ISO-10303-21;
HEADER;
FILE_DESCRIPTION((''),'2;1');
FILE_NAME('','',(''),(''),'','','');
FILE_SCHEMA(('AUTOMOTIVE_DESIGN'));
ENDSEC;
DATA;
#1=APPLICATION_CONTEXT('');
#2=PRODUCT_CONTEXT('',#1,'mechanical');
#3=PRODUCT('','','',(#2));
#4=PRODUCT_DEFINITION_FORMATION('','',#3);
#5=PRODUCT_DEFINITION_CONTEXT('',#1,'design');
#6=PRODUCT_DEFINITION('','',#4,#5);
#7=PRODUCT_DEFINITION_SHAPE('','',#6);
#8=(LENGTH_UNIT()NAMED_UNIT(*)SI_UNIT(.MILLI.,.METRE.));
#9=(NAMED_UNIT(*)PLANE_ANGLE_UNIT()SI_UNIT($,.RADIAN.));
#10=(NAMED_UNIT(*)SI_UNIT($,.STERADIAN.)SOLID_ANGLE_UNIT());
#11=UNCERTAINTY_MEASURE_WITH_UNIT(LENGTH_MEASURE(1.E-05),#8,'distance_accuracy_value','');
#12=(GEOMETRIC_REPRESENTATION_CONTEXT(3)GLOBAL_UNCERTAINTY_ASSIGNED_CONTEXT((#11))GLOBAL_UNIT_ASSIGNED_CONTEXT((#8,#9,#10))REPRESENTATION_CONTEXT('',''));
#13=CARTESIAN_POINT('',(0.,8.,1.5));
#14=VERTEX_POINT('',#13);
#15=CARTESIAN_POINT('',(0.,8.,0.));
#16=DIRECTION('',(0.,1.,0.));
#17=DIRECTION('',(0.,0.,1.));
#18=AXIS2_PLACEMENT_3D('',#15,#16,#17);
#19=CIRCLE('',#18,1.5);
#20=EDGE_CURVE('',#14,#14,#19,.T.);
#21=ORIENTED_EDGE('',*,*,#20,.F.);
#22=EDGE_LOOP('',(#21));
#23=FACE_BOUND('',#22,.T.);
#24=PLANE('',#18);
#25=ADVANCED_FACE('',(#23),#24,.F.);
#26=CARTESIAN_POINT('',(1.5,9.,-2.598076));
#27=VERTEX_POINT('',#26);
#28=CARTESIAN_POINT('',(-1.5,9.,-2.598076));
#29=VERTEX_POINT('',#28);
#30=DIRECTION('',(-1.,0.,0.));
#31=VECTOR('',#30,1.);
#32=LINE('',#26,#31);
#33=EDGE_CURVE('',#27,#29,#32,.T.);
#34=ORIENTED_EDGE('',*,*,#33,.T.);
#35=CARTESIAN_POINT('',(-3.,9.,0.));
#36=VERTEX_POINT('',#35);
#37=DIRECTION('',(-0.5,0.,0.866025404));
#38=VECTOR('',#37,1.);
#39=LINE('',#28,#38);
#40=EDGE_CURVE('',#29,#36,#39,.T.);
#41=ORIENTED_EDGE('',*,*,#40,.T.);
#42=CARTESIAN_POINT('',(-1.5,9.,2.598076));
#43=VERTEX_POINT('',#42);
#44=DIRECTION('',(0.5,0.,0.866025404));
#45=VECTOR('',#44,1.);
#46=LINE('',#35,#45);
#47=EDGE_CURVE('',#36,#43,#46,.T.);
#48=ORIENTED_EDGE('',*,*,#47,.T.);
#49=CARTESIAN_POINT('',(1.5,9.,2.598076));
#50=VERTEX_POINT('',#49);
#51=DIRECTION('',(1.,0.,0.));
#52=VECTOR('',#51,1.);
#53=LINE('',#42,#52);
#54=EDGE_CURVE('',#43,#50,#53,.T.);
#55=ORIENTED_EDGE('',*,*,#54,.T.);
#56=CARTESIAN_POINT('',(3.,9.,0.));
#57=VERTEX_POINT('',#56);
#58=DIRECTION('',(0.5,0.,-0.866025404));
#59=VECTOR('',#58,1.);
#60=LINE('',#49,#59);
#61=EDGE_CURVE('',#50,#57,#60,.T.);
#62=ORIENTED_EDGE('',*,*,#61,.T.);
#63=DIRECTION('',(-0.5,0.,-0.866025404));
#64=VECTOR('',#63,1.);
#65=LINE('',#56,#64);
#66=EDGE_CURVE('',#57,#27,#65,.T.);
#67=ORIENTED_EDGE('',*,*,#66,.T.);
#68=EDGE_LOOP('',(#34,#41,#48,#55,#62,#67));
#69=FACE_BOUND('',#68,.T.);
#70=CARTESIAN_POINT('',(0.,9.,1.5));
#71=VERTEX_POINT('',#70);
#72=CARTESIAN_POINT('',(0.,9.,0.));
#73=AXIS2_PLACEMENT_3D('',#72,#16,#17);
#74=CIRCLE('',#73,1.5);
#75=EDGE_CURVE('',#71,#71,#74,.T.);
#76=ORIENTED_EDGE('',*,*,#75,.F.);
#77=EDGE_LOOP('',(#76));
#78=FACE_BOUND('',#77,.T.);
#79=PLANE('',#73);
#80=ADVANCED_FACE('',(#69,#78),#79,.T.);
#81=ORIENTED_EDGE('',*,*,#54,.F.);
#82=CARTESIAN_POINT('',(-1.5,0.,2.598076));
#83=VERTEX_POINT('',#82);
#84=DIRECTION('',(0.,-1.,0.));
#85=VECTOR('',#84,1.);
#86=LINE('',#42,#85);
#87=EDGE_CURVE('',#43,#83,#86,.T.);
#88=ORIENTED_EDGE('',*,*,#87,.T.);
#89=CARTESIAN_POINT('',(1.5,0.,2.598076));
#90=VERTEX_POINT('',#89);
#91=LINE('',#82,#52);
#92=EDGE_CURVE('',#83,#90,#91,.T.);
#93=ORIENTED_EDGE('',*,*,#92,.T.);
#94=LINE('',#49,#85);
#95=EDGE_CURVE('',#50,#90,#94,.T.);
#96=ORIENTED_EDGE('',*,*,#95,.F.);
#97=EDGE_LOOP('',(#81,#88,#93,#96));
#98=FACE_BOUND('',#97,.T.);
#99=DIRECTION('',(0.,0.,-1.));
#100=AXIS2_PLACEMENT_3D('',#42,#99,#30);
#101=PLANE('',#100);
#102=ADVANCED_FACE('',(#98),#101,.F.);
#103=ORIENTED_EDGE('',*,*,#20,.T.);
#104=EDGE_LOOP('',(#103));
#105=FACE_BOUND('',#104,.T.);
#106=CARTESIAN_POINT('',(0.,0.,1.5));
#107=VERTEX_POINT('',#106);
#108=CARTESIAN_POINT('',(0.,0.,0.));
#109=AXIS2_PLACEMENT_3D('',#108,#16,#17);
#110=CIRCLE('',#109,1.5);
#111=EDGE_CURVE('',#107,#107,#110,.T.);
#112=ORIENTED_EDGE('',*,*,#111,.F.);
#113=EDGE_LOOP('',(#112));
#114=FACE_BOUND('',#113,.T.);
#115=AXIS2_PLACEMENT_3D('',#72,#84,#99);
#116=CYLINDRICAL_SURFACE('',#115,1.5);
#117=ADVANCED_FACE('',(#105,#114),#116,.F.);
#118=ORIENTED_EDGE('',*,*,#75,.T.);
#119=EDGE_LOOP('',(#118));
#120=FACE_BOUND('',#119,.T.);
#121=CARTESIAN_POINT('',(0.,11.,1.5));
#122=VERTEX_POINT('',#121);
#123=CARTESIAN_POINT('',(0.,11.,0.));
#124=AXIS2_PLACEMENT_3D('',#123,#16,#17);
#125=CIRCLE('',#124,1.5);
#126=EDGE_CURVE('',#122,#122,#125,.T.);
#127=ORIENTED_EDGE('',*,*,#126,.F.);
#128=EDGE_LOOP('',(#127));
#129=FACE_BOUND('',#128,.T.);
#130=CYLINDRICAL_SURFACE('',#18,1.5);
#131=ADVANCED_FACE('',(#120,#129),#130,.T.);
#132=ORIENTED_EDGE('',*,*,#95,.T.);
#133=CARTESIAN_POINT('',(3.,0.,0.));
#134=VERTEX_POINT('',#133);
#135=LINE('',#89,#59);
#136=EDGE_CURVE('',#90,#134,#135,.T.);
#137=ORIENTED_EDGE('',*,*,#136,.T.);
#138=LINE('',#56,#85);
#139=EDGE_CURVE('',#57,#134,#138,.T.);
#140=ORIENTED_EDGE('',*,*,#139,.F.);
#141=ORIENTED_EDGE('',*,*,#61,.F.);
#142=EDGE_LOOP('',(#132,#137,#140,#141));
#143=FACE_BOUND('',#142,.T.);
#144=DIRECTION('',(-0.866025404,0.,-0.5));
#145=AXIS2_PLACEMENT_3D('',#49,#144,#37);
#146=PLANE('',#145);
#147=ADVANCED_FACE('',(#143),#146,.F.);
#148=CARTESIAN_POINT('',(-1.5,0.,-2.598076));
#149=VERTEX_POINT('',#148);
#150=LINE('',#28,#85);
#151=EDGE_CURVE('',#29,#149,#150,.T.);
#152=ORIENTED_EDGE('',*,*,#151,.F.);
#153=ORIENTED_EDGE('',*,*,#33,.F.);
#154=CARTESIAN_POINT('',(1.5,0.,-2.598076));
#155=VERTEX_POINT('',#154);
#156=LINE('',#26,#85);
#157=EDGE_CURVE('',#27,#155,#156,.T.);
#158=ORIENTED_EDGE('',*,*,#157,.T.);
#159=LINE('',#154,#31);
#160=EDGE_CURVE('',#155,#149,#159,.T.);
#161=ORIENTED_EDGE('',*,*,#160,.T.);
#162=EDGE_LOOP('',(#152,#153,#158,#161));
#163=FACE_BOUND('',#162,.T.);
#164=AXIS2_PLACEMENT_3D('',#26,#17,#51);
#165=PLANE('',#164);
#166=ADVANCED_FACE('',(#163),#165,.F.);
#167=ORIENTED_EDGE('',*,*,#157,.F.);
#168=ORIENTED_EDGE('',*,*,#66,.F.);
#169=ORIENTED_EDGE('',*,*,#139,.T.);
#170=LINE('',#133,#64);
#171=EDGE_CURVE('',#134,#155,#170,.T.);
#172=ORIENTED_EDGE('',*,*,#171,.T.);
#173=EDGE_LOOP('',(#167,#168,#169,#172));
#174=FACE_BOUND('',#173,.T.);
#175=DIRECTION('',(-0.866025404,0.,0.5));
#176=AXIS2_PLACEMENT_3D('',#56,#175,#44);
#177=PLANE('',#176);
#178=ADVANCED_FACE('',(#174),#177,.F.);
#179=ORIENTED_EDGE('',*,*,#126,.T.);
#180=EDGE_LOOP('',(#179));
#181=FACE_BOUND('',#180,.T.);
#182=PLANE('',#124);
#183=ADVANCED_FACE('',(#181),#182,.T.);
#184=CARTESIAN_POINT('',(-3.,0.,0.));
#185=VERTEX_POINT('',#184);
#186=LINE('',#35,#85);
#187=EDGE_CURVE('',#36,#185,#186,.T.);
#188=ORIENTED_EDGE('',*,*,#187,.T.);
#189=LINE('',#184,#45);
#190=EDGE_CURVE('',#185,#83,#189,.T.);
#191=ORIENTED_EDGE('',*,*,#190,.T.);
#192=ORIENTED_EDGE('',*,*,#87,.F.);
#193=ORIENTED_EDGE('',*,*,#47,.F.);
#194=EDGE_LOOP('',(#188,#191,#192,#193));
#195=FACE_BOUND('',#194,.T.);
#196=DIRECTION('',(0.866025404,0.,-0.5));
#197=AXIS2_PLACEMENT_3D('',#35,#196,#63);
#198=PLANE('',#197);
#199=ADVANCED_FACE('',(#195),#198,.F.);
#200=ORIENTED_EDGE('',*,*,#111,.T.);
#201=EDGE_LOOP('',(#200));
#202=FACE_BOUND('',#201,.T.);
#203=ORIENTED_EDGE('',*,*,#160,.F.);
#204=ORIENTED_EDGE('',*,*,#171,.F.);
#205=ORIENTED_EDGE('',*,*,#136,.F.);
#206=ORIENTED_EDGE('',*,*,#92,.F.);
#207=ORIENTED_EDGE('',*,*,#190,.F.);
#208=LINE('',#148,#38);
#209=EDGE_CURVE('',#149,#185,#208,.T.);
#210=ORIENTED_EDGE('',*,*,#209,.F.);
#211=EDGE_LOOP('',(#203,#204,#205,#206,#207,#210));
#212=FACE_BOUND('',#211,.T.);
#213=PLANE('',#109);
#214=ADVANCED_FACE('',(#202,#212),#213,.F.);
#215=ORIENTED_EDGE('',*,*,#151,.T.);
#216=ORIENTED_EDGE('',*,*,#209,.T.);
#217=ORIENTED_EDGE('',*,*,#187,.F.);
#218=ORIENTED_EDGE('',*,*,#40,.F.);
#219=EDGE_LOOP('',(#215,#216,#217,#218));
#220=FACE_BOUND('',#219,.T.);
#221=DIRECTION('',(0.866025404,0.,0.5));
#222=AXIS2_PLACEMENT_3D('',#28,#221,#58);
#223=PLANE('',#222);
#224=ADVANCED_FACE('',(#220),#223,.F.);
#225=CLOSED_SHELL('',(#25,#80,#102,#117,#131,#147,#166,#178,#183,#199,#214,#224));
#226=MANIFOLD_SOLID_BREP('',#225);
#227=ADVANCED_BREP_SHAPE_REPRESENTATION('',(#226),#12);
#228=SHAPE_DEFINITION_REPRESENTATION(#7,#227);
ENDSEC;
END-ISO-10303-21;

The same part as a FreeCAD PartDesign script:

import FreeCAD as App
import Part
import Sketcher
Q = App.Units.Quantity


def add_polygon(sketch, points):
    """Adds a closed chain of lines whose ends are joined by coincident constraints."""
    first, n = sketch.GeometryCount, len(points)
    for a, b in zip(points, points[1:] + points[:1]):
        sketch.addGeometry(Part.LineSegment(App.Vector(*a, 0), App.Vector(*b, 0)), False)
    for i in range(n):
        sketch.addConstraint(Sketcher.Constraint("Coincident", first + i, 2, first + (i + 1) % n, 1))

doc = App.newDocument("Part")
body = doc.addObject("PartDesign::Body", "Body")

sketch1 = body.newObject("Sketcher::SketchObject", "Sketch")
sketch1.AttachmentSupport = (doc.getObject("XZ_Plane"), [""])
sketch1.MapMode = "FlatFace"
add_polygon(sketch1, [(3, 0), (1.5, -2.6), (-1.5, -2.6), (-3, 0), (-1.5, 2.6), (1.5, 2.6)])
sketch1.addGeometry(Part.Circle(App.Vector(0, 0, 0), App.Vector(0, 0, 1), 1.5), False)
sketch1.addConstraint([
    Sketcher.Constraint("Horizontal", 1),
    Sketcher.Constraint("Horizontal", 4),
    Sketcher.Constraint("Coincident", 6, 3, -1, 1),
    Sketcher.Constraint("Symmetric", 0, 2, 3, 2, -1, 1),
    Sketcher.Constraint("Symmetric", 2, 2, 5, 2, -1, 1),
    Sketcher.Constraint("PointOnObject", 2, 2, -1),
    Sketcher.Constraint("Parallel", 2, 5),
    Sketcher.Constraint("Vertical", 1, 2, 3, 2),
    Sketcher.Constraint("Diameter", 6, 3.0),
    Sketcher.Constraint("DistanceX", 1, 2, 1, 1, 3.0),
    Sketcher.Constraint("Angle", 0, Q("-120 deg")),
    Sketcher.Constraint("Distance", 0, 3.0),
])
pad1 = body.newObject("PartDesign::Pad", "Pad")
pad1.Profile = sketch1
pad1.Length = 9
pad1.Reversed = True

sketch2 = body.newObject("Sketcher::SketchObject", "Sketch001")
sketch2.AttachmentSupport = (doc.getObject("XZ_Plane"), [""])
sketch2.MapMode = "FlatFace"
sketch2.AttachmentOffset = App.Placement(App.Vector(0, 0, -9), App.Rotation())
sketch2.addGeometry(Part.Circle(App.Vector(0, 0, 0), App.Vector(0, 0, 1), 1.5), False)
sketch2.addConstraint([
    Sketcher.Constraint("Coincident", 0, 3, -1, 1),
    Sketcher.Constraint("Diameter", 0, 3.0),
])
pad2 = body.newObject("PartDesign::Pad", "Pad001")
pad2.Profile = sketch2
pad2.Type = "TwoLengths"
pad2.Length = 2
pad2.Length2 = 1
pad2.Reversed = True

doc.recompute()
